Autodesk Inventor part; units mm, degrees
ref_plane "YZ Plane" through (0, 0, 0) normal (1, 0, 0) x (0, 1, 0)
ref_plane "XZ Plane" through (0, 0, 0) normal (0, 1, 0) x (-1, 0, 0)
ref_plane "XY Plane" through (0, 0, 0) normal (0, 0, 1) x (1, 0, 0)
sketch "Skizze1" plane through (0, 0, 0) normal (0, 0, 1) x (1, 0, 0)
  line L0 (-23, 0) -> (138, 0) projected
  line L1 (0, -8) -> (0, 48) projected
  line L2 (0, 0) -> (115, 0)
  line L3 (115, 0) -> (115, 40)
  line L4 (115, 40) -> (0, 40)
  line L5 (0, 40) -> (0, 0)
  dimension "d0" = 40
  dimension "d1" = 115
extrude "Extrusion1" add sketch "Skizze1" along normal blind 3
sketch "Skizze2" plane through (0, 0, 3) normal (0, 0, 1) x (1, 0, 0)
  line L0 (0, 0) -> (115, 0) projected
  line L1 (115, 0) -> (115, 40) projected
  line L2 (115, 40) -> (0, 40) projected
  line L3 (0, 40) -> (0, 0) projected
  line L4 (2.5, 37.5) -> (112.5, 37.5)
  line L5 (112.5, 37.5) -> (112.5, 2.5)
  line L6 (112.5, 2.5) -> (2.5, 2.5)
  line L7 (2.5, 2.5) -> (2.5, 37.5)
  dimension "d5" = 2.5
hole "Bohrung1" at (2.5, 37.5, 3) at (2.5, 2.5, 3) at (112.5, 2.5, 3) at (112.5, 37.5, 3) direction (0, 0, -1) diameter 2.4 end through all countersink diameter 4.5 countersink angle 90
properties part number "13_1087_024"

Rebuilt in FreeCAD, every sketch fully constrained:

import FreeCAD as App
import Part
import Sketcher
from FreeCAD import Vector


def add_polygon(sketch, points):
    """Adds a closed chain of lines whose ends are joined by coincident constraints."""
    first, n = sketch.GeometryCount, len(points)
    for a, b in zip(points, points[1:] + points[:1]):
        sketch.addGeometry(Part.LineSegment(App.Vector(*a, 0), App.Vector(*b, 0)), False)
    for i in range(n):
        sketch.addConstraint(Sketcher.Constraint("Coincident", first + i, 2, first + (i + 1) % n, 1))

doc = App.newDocument("Part")
body = doc.addObject("PartDesign::Body", "Body")

# Sketch on XY plane
sketch1 = body.newObject("Sketcher::SketchObject", "Sketch")
sketch1.AttachmentSupport = (doc.getObject("XY_Plane"), [""])
sketch1.MapMode = "FlatFace"
add_polygon(sketch1, [(0, 40), (0, 0), (115, 0), (115, 40)])  # lines 0-3
sketch1.addConstraint([
    Sketcher.Constraint("Vertical", 0),
    Sketcher.Constraint("Horizontal", 1),
    Sketcher.Constraint("Vertical", 2),
    Sketcher.Constraint("Horizontal", 3),
    Sketcher.Constraint("Coincident", 0, 2, -1, 1),
    Sketcher.Constraint("DistanceX", 1, 1, 1, 2, 115.0),
    Sketcher.Constraint("DistanceY", 0, 2, 0, 1, 40.0),
])
pad1 = body.newObject("PartDesign::Pad", "Pad")
pad1.Profile = sketch1
pad1.Length = 3

# Sketch on XY plane
sketch2 = body.newObject("Sketcher::SketchObject", "Sketch001")
sketch2.AttachmentSupport = (doc.getObject("XY_Plane"), [""])
sketch2.MapMode = "FlatFace"
sketch2.AttachmentOffset = App.Placement(Vector(0, 0, 3), App.Rotation())
sketch2.addGeometry([
    Part.Circle(Vector(2.5, 37.5, 0), Vector(0, 0, 1), 1.2),
    Part.Circle(Vector(2.5, 2.5, 0), Vector(0, 0, 1), 1.2),
    Part.Circle(Vector(112.5, 2.5, 0), Vector(0, 0, 1), 1.2),
    Part.Circle(Vector(112.5, 37.5, 0), Vector(0, 0, 1), 1.2),
], False)
sketch2.addConstraint([
    Sketcher.Constraint("Equal", 0, 1),
    Sketcher.Constraint("Equal", 1, 2),
    Sketcher.Constraint("Equal", 2, 3),
    Sketcher.Constraint("Horizontal", 1, 3, 2, 3),
    Sketcher.Constraint("Horizontal", 0, 3, 3, 3),
    Sketcher.Constraint("Vertical", 0, 3, 1, 3),
    Sketcher.Constraint("Vertical", 2, 3, 3, 3),
    Sketcher.Constraint("Diameter", 0, 2.4),
    Sketcher.Constraint("DistanceY", 1, 3, 0, 3, 35.0),
    Sketcher.Constraint("DistanceX", 1, 3, 2, 3, 110.0),
    Sketcher.Constraint("DistanceX", -1, 1, 0, 3, 2.5),
    Sketcher.Constraint("DistanceY", -1, 1, 0, 3, 37.5),
])
doc.recompute()
hole = body.newObject("PartDesign::Hole", "Hole")
hole.Profile = sketch2
hole.ThreadType = "None"
hole.Diameter = 2.4
hole.DepthType = "ThroughAll"
hole.HoleCutType = "Countersink"
hole.HoleCutDiameter = 4.5
hole.HoleCutCountersinkAngle = 90

doc.recompute()
